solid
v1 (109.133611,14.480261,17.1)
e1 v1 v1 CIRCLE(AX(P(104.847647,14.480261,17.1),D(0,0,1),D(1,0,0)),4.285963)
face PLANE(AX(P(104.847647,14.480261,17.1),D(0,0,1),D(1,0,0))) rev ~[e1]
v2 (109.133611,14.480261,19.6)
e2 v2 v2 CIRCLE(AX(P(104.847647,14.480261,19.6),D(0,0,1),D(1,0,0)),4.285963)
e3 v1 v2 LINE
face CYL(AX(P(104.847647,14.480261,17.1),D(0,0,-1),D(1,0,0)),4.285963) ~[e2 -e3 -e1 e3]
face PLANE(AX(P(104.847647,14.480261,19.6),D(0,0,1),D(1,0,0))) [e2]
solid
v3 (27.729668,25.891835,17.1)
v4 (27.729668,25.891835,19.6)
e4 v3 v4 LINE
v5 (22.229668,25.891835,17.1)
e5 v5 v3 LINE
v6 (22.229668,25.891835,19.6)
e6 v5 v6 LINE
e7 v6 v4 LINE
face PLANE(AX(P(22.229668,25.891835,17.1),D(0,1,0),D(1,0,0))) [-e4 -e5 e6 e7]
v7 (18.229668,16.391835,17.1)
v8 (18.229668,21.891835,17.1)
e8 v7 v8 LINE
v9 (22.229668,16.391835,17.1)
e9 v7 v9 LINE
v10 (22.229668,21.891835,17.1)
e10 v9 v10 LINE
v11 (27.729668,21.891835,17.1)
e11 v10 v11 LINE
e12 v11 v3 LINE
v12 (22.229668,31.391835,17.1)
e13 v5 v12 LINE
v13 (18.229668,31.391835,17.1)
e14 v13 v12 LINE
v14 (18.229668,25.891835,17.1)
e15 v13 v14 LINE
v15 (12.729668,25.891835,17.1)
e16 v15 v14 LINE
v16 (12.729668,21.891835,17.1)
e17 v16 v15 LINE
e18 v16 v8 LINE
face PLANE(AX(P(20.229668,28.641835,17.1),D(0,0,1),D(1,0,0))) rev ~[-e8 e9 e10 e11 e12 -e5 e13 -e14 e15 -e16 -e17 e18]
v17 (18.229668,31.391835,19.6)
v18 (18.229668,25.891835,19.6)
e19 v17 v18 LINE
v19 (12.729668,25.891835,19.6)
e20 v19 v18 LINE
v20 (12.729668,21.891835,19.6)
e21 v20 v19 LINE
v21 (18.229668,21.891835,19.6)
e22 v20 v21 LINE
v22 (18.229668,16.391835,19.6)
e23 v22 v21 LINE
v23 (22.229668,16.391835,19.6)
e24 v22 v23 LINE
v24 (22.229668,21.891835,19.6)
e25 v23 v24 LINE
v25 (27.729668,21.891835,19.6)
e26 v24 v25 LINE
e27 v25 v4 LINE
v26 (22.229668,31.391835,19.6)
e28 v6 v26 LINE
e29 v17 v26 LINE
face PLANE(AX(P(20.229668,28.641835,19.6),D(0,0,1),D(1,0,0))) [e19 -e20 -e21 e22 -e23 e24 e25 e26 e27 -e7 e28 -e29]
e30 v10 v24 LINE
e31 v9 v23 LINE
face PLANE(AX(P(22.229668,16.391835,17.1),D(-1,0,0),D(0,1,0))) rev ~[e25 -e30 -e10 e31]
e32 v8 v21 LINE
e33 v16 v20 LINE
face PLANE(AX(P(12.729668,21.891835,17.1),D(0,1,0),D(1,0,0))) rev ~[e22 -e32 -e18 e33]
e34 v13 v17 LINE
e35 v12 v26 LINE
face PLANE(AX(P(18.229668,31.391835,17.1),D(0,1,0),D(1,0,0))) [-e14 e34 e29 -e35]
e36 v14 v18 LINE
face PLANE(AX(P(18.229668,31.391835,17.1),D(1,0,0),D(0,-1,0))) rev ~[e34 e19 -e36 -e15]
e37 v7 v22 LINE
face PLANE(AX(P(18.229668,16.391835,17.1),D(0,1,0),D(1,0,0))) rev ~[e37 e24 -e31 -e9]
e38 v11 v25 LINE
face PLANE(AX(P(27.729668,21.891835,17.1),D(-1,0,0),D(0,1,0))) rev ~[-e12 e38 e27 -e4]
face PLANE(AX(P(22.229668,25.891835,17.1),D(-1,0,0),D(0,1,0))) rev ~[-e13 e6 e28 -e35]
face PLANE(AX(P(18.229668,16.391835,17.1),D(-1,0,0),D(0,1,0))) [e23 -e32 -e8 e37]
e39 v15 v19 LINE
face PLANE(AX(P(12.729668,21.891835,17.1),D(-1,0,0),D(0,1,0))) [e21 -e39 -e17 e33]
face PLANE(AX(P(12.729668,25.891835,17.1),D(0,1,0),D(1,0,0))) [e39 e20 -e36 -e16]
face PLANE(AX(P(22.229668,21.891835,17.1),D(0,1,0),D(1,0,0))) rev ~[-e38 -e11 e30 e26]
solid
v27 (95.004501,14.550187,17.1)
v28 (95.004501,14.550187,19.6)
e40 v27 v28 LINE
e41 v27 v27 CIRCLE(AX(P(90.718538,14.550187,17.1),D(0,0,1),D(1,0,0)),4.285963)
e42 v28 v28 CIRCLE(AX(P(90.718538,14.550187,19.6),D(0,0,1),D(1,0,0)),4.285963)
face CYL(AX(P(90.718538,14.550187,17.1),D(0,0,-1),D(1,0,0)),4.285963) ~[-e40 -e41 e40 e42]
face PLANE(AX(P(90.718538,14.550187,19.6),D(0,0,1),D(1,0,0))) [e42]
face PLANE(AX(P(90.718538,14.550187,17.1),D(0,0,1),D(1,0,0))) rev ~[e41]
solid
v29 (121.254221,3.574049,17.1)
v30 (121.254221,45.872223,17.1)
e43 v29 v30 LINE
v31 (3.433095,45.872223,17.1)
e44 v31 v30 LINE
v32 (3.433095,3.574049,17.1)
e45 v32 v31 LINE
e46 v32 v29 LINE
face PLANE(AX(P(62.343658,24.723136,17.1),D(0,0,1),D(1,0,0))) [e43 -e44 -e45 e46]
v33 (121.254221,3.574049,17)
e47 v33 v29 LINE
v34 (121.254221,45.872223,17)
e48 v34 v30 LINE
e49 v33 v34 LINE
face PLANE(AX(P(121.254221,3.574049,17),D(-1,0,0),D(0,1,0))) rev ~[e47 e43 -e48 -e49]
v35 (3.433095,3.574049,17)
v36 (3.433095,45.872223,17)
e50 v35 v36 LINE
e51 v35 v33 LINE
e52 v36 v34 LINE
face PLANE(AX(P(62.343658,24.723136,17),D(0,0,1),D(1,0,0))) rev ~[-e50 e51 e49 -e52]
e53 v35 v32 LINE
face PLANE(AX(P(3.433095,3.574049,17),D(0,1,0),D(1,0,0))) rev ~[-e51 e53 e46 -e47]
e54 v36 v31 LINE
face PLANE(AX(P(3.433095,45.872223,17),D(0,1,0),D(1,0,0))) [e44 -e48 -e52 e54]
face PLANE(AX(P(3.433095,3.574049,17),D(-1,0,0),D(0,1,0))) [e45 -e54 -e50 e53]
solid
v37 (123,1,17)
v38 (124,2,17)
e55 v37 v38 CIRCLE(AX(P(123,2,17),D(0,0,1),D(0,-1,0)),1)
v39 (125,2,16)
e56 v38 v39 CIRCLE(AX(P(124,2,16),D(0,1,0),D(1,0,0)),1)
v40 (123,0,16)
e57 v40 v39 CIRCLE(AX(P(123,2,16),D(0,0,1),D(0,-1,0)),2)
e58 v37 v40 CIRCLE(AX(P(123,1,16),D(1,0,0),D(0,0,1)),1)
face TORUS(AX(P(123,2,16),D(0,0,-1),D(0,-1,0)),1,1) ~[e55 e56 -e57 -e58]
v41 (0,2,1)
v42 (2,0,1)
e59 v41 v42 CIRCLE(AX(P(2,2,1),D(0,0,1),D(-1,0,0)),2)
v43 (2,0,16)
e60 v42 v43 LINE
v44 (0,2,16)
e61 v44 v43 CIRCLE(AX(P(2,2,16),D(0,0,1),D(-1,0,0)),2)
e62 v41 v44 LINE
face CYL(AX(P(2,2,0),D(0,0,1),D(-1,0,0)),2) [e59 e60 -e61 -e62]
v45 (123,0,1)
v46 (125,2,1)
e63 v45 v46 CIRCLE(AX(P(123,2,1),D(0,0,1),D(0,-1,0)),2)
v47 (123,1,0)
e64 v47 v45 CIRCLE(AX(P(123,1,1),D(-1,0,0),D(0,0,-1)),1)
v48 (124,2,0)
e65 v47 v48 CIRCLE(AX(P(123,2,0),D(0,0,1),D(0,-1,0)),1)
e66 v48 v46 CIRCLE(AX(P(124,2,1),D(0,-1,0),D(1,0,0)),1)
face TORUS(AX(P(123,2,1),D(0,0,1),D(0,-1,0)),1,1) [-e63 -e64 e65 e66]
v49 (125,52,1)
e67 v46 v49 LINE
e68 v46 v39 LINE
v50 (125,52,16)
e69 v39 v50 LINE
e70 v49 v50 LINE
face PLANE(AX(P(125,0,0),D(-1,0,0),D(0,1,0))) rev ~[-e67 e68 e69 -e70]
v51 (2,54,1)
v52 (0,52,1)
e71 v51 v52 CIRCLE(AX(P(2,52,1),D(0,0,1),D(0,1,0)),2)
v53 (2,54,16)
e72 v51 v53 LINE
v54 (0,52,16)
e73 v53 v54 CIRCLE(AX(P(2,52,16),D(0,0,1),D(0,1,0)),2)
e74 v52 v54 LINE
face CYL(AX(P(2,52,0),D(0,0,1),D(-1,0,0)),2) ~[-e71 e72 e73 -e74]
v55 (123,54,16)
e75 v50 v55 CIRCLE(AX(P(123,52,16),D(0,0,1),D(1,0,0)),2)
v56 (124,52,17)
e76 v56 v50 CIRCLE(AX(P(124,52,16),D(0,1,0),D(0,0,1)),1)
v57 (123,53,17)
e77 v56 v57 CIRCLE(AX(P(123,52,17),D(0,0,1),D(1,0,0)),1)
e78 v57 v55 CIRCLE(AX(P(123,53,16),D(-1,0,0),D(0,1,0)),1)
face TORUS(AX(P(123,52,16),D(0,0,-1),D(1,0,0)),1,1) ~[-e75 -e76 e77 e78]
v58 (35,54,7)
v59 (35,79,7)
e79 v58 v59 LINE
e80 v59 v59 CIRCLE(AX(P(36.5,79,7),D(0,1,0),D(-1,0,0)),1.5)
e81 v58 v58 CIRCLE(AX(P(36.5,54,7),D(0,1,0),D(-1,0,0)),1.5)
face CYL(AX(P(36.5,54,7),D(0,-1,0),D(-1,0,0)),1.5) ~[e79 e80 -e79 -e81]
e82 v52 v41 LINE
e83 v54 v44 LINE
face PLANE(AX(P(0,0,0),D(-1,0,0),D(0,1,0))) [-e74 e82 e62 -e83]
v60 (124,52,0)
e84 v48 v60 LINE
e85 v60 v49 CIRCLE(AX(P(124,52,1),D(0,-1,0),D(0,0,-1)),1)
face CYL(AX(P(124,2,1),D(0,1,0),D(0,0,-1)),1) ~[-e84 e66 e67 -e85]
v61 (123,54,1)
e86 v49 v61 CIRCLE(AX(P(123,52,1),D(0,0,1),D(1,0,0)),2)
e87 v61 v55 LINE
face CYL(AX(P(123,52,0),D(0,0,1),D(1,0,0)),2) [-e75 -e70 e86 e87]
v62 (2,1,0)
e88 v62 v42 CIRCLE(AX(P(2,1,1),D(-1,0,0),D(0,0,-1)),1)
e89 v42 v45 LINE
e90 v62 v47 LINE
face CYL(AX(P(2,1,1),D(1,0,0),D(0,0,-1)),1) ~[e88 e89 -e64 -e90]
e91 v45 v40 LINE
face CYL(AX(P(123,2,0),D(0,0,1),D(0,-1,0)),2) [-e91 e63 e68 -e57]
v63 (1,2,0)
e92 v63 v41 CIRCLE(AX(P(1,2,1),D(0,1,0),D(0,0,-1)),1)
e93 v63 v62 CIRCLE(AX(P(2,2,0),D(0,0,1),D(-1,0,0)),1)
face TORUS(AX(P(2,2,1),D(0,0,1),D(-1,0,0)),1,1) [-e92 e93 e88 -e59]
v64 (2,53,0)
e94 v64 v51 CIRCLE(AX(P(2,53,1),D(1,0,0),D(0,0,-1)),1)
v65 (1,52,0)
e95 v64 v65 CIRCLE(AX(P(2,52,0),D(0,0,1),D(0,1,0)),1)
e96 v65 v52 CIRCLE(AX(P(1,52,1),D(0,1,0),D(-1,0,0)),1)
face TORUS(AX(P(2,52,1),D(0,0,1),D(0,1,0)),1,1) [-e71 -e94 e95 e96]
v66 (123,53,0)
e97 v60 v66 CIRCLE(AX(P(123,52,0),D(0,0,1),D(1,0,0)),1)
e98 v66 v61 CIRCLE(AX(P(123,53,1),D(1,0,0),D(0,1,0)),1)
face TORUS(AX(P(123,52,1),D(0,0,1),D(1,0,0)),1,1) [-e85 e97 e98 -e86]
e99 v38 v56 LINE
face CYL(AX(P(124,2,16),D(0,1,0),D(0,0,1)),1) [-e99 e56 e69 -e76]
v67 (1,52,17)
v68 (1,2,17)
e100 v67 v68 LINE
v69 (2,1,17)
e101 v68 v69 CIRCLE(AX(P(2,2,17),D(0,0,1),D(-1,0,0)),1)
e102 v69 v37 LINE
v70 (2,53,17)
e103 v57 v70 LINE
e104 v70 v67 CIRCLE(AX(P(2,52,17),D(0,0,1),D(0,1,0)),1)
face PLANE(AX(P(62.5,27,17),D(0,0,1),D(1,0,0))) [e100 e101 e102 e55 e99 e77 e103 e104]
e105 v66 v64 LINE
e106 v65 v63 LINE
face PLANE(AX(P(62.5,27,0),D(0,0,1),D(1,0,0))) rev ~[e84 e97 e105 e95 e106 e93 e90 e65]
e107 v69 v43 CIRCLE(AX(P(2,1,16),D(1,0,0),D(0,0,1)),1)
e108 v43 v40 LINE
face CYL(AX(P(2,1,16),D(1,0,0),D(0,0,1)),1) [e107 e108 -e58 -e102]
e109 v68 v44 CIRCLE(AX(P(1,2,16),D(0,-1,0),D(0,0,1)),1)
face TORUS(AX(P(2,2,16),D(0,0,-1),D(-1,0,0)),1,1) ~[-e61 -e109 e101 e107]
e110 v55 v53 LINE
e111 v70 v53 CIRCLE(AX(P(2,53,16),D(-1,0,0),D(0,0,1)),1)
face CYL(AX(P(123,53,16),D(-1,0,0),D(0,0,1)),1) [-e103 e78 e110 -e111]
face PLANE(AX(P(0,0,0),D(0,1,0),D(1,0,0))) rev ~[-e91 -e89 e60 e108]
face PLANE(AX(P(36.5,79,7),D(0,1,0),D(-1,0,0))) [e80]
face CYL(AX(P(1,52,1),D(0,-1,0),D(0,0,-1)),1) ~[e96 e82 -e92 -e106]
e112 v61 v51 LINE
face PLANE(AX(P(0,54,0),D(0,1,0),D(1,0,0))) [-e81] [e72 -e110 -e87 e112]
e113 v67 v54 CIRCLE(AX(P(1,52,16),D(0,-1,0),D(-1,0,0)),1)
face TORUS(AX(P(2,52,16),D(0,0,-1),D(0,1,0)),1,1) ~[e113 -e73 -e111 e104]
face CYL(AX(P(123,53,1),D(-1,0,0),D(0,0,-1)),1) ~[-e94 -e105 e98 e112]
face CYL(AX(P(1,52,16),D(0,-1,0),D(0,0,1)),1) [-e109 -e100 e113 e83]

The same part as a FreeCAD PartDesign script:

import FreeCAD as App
import Part
import Sketcher
from FreeCAD import Vector
Q = App.Units.Quantity


def edges_at(feature, points):
    """Names of the edges that pass closest to the given points."""
    edges = feature.Shape.Edges
    near = lambda p: min(range(len(edges)), key=lambda i: edges[i].distToShape(Part.Vertex(*p))[0])
    return sorted({f"Edge{near(p) + 1}" for p in points})


def add_polygon(sketch, points):
    """Adds a closed chain of lines whose ends are joined by coincident constraints."""
    first, n = sketch.GeometryCount, len(points)
    for a, b in zip(points, points[1:] + points[:1]):
        sketch.addGeometry(Part.LineSegment(App.Vector(*a, 0), App.Vector(*b, 0)), False)
    for i in range(n):
        sketch.addConstraint(Sketcher.Constraint("Coincident", first + i, 2, first + (i + 1) % n, 1))

doc = App.newDocument("Part")
body = doc.addObject("PartDesign::Body", "Body")

sketch1 = body.newObject("Sketcher::SketchObject", "Sketch")
sketch1.AttachmentSupport = (doc.getObject("XY_Plane"), [""])
sketch1.MapMode = "FlatFace"
add_polygon(sketch1, [(0, 54), (0, 0), (125, 0), (125, 54)])
sketch1.addConstraint([
    Sketcher.Constraint("Vertical", 0),
    Sketcher.Constraint("Horizontal", 1),
    Sketcher.Constraint("Vertical", 2),
    Sketcher.Constraint("Horizontal", 3),
    Sketcher.Constraint("Coincident", 0, 2, -1, 1),
    Sketcher.Constraint("DistanceX", 1, 1, 1, 2, Q("125 mm")),
    Sketcher.Constraint("DistanceY", 0, 2, 0, 1, Q("54 mm")),
])
pad1 = body.newObject("PartDesign::Pad", "Pad")
pad1.Profile = sketch1
pad1.Length = 17
doc.recompute()

fillet = body.newObject("PartDesign::Fillet", "Fillet")
fillet.Base = (pad1, edges_at(pad1, [
    (125, 54, 8.5),
    (125, 0, 8.5),
    (0, 0, 8.5),
    (0, 54, 8.5),
]))
fillet.Radius = 2
doc.recompute()

fillet2 = body.newObject("PartDesign::Fillet", "Fillet001")
fillet2.Base = (fillet, edges_at(fillet, [(62.5, 0, 17), (62.5, 0, 0)]))
fillet2.Radius = 1

sketch2 = body.newObject("Sketcher::SketchObject", "Sketch001")
sketch2.AttachmentSupport = (doc.getObject("XZ_Plane"), [""])
sketch2.MapMode = "FlatFace"
sketch2.AttachmentOffset = App.Placement(Vector(0, 0, -54), App.Rotation())
sketch2.addGeometry(Part.Circle(Vector(36.5, 7, 0), Vector(0, 0, 1), 1.5), False)
sketch2.addConstraint([
    Sketcher.Constraint("Diameter", 0, Q("3 mm")),
    Sketcher.Constraint("DistanceY", -1, 1, 0, 3, Q("7 mm")),
    Sketcher.Constraint("DistanceX", -1, 1, 0, 3, Q("36.5 mm")),
])
pad2 = body.newObject("PartDesign::Pad", "Pad001")
pad2.Profile = sketch2
pad2.Length = 25
pad2.Reversed = True
body2 = doc.addObject("PartDesign::Body", "Body001")

sketch3 = body2.newObject("Sketcher::SketchObject", "Sketch002")
sketch3.AttachmentSupport = (doc.getObject("XY_Plane001"), [""])
sketch3.MapMode = "FlatFace"
sketch3.AttachmentOffset = App.Placement(Vector(0, 0, 17), App.Rotation())
add_polygon(sketch3, [(3, 46), (3, 4), (121, 4), (121, 46)])
sketch3.addConstraint([
    Sketcher.Constraint("Vertical", 0),
    Sketcher.Constraint("Horizontal", 1),
    Sketcher.Constraint("Vertical", 2),
    Sketcher.Constraint("Horizontal", 3),
    Sketcher.Constraint("DistanceX", 1, 1, 1, 2, Q("117.821126 mm")),
    Sketcher.Constraint("DistanceY", 0, 2, 0, 1, Q("42.298173 mm")),
    Sketcher.Constraint("DistanceY", -1, 1, 0, 2, Q("3.574049 mm")),
    Sketcher.Constraint("DistanceX", -1, 1, 1, 2, Q("121.254221 mm")),
])
pad3 = body2.newObject("PartDesign::Pad", "Pad002")
pad3.Profile = sketch3
pad3.Length = 0.1
body3 = doc.addObject("PartDesign::Body", "Body002")

sketch4 = body3.newObject("Sketcher::SketchObject", "Sketch003")
sketch4.AttachmentSupport = (doc.getObject("XY_Plane002"), [""])
sketch4.MapMode = "FlatFace"
sketch4.AttachmentOffset = App.Placement(Vector(0, 0, 17.1), App.Rotation())
sketch4.addGeometry(Part.Circle(Vector(90.7, 14.6, 0), Vector(0, 0, 1), 4.3), False)
sketch4.addConstraint([
    Sketcher.Constraint("Diameter", 0, Q("8.571927 mm")),
    Sketcher.Constraint("DistanceX", -1, 1, 0, 3, Q("90.718538 mm")),
    Sketcher.Constraint("DistanceY", -1, 1, 0, 3, Q("14.550187 mm")),
])
pad4 = body3.newObject("PartDesign::Pad", "Pad003")
pad4.Profile = sketch4
pad4.Length = 2.5
body4 = doc.addObject("PartDesign::Body", "Body003")

sketch5 = body4.newObject("Sketcher::SketchObject", "Sketch004")
sketch5.AttachmentSupport = (doc.getObject("XY_Plane003"), [""])
sketch5.MapMode = "FlatFace"
sketch5.AttachmentOffset = App.Placement(Vector(0, 0, 17.1), App.Rotation())
sketch5.addGeometry(Part.Circle(Vector(104.8, 14.5, 0), Vector(0, 0, 1), 4.3), False)
sketch5.addConstraint([
    Sketcher.Constraint("Diameter", 0, Q("8.571927 mm")),
    Sketcher.Constraint("DistanceY", -1, 1, 0, 3, Q("14.480261 mm")),
    Sketcher.Constraint("DistanceX", -1, 1, 0, 3, Q("104.847647 mm")),
])
pad5 = body4.newObject("PartDesign::Pad", "Pad004")
pad5.Profile = sketch5
pad5.Length = 2.5
body5 = doc.addObject("PartDesign::Body", "Body004")

sketch6 = body5.newObject("Sketcher::SketchObject", "Sketch005")
sketch6.AttachmentSupport = (doc.getObject("XY_Plane004"), [""])
sketch6.MapMode = "FlatFace"
sketch6.AttachmentOffset = App.Placement(Vector(0, 0, 17.1), App.Rotation())
add_polygon(sketch6, [(18.2, 31.4), (18.2, 25.9), (12.7, 25.9), (12.7, 21.9), (18.2, 21.9), (18.2, 16.4), (22.2, 16.4), (22.2, 21.9), (27.7, 21.9), (27.7, 25.9), (22.2, 25.9), (22.2, 31.4)])
sketch6.addConstraint([
    Sketcher.Constraint("Vertical", 0),
    Sketcher.Constraint("Horizontal", 1),
    Sketcher.Constraint("Vertical", 2),
    Sketcher.Constraint("Horizontal", 3),
    Sketcher.Constraint("Vertical", 4),
    Sketcher.Constraint("Horizontal", 5),
    Sketcher.Constraint("Vertical", 6),
    Sketcher.Constraint("Horizontal", 7),
    Sketcher.Constraint("Vertical", 8),
    Sketcher.Constraint("Horizontal", 9),
    Sketcher.Constraint("Vertical", 10),
    Sketcher.Constraint("Horizontal", 11),
    Sketcher.Constraint("Horizontal", 3, 2, 6, 2),
    Sketcher.Constraint("Horizontal", 1, 2, 8, 2),
    Sketcher.Constraint("Vertical", 0, 2, 3, 2),
    Sketcher.Constraint("Vertical", 6, 2, 9, 2),
    Sketcher.Constraint("Equal", 3, 7),
    Sketcher.Constraint("Equal", 9, 0),
    Sketcher.Constraint("Equal", 11, 2),
    Sketcher.Constraint("Equal", 0, 4),
    Sketcher.Constraint("DistanceX", 5, 1, 5, 2, Q("4 mm")),
    Sketcher.Constraint("DistanceX", 1, 2, 1, 1, Q("5.5 mm")),
    Sketcher.Constraint("DistanceX", -1, 1, 0, 2, Q("18.229668 mm")),
    Sketcher.Constraint("DistanceY", -1, 1, 0, 2, Q("25.891835 mm")),
])
pad6 = body5.newObject("PartDesign::Pad", "Pad005")
pad6.Profile = sketch6
pad6.Length = 2.5

doc.recompute()
